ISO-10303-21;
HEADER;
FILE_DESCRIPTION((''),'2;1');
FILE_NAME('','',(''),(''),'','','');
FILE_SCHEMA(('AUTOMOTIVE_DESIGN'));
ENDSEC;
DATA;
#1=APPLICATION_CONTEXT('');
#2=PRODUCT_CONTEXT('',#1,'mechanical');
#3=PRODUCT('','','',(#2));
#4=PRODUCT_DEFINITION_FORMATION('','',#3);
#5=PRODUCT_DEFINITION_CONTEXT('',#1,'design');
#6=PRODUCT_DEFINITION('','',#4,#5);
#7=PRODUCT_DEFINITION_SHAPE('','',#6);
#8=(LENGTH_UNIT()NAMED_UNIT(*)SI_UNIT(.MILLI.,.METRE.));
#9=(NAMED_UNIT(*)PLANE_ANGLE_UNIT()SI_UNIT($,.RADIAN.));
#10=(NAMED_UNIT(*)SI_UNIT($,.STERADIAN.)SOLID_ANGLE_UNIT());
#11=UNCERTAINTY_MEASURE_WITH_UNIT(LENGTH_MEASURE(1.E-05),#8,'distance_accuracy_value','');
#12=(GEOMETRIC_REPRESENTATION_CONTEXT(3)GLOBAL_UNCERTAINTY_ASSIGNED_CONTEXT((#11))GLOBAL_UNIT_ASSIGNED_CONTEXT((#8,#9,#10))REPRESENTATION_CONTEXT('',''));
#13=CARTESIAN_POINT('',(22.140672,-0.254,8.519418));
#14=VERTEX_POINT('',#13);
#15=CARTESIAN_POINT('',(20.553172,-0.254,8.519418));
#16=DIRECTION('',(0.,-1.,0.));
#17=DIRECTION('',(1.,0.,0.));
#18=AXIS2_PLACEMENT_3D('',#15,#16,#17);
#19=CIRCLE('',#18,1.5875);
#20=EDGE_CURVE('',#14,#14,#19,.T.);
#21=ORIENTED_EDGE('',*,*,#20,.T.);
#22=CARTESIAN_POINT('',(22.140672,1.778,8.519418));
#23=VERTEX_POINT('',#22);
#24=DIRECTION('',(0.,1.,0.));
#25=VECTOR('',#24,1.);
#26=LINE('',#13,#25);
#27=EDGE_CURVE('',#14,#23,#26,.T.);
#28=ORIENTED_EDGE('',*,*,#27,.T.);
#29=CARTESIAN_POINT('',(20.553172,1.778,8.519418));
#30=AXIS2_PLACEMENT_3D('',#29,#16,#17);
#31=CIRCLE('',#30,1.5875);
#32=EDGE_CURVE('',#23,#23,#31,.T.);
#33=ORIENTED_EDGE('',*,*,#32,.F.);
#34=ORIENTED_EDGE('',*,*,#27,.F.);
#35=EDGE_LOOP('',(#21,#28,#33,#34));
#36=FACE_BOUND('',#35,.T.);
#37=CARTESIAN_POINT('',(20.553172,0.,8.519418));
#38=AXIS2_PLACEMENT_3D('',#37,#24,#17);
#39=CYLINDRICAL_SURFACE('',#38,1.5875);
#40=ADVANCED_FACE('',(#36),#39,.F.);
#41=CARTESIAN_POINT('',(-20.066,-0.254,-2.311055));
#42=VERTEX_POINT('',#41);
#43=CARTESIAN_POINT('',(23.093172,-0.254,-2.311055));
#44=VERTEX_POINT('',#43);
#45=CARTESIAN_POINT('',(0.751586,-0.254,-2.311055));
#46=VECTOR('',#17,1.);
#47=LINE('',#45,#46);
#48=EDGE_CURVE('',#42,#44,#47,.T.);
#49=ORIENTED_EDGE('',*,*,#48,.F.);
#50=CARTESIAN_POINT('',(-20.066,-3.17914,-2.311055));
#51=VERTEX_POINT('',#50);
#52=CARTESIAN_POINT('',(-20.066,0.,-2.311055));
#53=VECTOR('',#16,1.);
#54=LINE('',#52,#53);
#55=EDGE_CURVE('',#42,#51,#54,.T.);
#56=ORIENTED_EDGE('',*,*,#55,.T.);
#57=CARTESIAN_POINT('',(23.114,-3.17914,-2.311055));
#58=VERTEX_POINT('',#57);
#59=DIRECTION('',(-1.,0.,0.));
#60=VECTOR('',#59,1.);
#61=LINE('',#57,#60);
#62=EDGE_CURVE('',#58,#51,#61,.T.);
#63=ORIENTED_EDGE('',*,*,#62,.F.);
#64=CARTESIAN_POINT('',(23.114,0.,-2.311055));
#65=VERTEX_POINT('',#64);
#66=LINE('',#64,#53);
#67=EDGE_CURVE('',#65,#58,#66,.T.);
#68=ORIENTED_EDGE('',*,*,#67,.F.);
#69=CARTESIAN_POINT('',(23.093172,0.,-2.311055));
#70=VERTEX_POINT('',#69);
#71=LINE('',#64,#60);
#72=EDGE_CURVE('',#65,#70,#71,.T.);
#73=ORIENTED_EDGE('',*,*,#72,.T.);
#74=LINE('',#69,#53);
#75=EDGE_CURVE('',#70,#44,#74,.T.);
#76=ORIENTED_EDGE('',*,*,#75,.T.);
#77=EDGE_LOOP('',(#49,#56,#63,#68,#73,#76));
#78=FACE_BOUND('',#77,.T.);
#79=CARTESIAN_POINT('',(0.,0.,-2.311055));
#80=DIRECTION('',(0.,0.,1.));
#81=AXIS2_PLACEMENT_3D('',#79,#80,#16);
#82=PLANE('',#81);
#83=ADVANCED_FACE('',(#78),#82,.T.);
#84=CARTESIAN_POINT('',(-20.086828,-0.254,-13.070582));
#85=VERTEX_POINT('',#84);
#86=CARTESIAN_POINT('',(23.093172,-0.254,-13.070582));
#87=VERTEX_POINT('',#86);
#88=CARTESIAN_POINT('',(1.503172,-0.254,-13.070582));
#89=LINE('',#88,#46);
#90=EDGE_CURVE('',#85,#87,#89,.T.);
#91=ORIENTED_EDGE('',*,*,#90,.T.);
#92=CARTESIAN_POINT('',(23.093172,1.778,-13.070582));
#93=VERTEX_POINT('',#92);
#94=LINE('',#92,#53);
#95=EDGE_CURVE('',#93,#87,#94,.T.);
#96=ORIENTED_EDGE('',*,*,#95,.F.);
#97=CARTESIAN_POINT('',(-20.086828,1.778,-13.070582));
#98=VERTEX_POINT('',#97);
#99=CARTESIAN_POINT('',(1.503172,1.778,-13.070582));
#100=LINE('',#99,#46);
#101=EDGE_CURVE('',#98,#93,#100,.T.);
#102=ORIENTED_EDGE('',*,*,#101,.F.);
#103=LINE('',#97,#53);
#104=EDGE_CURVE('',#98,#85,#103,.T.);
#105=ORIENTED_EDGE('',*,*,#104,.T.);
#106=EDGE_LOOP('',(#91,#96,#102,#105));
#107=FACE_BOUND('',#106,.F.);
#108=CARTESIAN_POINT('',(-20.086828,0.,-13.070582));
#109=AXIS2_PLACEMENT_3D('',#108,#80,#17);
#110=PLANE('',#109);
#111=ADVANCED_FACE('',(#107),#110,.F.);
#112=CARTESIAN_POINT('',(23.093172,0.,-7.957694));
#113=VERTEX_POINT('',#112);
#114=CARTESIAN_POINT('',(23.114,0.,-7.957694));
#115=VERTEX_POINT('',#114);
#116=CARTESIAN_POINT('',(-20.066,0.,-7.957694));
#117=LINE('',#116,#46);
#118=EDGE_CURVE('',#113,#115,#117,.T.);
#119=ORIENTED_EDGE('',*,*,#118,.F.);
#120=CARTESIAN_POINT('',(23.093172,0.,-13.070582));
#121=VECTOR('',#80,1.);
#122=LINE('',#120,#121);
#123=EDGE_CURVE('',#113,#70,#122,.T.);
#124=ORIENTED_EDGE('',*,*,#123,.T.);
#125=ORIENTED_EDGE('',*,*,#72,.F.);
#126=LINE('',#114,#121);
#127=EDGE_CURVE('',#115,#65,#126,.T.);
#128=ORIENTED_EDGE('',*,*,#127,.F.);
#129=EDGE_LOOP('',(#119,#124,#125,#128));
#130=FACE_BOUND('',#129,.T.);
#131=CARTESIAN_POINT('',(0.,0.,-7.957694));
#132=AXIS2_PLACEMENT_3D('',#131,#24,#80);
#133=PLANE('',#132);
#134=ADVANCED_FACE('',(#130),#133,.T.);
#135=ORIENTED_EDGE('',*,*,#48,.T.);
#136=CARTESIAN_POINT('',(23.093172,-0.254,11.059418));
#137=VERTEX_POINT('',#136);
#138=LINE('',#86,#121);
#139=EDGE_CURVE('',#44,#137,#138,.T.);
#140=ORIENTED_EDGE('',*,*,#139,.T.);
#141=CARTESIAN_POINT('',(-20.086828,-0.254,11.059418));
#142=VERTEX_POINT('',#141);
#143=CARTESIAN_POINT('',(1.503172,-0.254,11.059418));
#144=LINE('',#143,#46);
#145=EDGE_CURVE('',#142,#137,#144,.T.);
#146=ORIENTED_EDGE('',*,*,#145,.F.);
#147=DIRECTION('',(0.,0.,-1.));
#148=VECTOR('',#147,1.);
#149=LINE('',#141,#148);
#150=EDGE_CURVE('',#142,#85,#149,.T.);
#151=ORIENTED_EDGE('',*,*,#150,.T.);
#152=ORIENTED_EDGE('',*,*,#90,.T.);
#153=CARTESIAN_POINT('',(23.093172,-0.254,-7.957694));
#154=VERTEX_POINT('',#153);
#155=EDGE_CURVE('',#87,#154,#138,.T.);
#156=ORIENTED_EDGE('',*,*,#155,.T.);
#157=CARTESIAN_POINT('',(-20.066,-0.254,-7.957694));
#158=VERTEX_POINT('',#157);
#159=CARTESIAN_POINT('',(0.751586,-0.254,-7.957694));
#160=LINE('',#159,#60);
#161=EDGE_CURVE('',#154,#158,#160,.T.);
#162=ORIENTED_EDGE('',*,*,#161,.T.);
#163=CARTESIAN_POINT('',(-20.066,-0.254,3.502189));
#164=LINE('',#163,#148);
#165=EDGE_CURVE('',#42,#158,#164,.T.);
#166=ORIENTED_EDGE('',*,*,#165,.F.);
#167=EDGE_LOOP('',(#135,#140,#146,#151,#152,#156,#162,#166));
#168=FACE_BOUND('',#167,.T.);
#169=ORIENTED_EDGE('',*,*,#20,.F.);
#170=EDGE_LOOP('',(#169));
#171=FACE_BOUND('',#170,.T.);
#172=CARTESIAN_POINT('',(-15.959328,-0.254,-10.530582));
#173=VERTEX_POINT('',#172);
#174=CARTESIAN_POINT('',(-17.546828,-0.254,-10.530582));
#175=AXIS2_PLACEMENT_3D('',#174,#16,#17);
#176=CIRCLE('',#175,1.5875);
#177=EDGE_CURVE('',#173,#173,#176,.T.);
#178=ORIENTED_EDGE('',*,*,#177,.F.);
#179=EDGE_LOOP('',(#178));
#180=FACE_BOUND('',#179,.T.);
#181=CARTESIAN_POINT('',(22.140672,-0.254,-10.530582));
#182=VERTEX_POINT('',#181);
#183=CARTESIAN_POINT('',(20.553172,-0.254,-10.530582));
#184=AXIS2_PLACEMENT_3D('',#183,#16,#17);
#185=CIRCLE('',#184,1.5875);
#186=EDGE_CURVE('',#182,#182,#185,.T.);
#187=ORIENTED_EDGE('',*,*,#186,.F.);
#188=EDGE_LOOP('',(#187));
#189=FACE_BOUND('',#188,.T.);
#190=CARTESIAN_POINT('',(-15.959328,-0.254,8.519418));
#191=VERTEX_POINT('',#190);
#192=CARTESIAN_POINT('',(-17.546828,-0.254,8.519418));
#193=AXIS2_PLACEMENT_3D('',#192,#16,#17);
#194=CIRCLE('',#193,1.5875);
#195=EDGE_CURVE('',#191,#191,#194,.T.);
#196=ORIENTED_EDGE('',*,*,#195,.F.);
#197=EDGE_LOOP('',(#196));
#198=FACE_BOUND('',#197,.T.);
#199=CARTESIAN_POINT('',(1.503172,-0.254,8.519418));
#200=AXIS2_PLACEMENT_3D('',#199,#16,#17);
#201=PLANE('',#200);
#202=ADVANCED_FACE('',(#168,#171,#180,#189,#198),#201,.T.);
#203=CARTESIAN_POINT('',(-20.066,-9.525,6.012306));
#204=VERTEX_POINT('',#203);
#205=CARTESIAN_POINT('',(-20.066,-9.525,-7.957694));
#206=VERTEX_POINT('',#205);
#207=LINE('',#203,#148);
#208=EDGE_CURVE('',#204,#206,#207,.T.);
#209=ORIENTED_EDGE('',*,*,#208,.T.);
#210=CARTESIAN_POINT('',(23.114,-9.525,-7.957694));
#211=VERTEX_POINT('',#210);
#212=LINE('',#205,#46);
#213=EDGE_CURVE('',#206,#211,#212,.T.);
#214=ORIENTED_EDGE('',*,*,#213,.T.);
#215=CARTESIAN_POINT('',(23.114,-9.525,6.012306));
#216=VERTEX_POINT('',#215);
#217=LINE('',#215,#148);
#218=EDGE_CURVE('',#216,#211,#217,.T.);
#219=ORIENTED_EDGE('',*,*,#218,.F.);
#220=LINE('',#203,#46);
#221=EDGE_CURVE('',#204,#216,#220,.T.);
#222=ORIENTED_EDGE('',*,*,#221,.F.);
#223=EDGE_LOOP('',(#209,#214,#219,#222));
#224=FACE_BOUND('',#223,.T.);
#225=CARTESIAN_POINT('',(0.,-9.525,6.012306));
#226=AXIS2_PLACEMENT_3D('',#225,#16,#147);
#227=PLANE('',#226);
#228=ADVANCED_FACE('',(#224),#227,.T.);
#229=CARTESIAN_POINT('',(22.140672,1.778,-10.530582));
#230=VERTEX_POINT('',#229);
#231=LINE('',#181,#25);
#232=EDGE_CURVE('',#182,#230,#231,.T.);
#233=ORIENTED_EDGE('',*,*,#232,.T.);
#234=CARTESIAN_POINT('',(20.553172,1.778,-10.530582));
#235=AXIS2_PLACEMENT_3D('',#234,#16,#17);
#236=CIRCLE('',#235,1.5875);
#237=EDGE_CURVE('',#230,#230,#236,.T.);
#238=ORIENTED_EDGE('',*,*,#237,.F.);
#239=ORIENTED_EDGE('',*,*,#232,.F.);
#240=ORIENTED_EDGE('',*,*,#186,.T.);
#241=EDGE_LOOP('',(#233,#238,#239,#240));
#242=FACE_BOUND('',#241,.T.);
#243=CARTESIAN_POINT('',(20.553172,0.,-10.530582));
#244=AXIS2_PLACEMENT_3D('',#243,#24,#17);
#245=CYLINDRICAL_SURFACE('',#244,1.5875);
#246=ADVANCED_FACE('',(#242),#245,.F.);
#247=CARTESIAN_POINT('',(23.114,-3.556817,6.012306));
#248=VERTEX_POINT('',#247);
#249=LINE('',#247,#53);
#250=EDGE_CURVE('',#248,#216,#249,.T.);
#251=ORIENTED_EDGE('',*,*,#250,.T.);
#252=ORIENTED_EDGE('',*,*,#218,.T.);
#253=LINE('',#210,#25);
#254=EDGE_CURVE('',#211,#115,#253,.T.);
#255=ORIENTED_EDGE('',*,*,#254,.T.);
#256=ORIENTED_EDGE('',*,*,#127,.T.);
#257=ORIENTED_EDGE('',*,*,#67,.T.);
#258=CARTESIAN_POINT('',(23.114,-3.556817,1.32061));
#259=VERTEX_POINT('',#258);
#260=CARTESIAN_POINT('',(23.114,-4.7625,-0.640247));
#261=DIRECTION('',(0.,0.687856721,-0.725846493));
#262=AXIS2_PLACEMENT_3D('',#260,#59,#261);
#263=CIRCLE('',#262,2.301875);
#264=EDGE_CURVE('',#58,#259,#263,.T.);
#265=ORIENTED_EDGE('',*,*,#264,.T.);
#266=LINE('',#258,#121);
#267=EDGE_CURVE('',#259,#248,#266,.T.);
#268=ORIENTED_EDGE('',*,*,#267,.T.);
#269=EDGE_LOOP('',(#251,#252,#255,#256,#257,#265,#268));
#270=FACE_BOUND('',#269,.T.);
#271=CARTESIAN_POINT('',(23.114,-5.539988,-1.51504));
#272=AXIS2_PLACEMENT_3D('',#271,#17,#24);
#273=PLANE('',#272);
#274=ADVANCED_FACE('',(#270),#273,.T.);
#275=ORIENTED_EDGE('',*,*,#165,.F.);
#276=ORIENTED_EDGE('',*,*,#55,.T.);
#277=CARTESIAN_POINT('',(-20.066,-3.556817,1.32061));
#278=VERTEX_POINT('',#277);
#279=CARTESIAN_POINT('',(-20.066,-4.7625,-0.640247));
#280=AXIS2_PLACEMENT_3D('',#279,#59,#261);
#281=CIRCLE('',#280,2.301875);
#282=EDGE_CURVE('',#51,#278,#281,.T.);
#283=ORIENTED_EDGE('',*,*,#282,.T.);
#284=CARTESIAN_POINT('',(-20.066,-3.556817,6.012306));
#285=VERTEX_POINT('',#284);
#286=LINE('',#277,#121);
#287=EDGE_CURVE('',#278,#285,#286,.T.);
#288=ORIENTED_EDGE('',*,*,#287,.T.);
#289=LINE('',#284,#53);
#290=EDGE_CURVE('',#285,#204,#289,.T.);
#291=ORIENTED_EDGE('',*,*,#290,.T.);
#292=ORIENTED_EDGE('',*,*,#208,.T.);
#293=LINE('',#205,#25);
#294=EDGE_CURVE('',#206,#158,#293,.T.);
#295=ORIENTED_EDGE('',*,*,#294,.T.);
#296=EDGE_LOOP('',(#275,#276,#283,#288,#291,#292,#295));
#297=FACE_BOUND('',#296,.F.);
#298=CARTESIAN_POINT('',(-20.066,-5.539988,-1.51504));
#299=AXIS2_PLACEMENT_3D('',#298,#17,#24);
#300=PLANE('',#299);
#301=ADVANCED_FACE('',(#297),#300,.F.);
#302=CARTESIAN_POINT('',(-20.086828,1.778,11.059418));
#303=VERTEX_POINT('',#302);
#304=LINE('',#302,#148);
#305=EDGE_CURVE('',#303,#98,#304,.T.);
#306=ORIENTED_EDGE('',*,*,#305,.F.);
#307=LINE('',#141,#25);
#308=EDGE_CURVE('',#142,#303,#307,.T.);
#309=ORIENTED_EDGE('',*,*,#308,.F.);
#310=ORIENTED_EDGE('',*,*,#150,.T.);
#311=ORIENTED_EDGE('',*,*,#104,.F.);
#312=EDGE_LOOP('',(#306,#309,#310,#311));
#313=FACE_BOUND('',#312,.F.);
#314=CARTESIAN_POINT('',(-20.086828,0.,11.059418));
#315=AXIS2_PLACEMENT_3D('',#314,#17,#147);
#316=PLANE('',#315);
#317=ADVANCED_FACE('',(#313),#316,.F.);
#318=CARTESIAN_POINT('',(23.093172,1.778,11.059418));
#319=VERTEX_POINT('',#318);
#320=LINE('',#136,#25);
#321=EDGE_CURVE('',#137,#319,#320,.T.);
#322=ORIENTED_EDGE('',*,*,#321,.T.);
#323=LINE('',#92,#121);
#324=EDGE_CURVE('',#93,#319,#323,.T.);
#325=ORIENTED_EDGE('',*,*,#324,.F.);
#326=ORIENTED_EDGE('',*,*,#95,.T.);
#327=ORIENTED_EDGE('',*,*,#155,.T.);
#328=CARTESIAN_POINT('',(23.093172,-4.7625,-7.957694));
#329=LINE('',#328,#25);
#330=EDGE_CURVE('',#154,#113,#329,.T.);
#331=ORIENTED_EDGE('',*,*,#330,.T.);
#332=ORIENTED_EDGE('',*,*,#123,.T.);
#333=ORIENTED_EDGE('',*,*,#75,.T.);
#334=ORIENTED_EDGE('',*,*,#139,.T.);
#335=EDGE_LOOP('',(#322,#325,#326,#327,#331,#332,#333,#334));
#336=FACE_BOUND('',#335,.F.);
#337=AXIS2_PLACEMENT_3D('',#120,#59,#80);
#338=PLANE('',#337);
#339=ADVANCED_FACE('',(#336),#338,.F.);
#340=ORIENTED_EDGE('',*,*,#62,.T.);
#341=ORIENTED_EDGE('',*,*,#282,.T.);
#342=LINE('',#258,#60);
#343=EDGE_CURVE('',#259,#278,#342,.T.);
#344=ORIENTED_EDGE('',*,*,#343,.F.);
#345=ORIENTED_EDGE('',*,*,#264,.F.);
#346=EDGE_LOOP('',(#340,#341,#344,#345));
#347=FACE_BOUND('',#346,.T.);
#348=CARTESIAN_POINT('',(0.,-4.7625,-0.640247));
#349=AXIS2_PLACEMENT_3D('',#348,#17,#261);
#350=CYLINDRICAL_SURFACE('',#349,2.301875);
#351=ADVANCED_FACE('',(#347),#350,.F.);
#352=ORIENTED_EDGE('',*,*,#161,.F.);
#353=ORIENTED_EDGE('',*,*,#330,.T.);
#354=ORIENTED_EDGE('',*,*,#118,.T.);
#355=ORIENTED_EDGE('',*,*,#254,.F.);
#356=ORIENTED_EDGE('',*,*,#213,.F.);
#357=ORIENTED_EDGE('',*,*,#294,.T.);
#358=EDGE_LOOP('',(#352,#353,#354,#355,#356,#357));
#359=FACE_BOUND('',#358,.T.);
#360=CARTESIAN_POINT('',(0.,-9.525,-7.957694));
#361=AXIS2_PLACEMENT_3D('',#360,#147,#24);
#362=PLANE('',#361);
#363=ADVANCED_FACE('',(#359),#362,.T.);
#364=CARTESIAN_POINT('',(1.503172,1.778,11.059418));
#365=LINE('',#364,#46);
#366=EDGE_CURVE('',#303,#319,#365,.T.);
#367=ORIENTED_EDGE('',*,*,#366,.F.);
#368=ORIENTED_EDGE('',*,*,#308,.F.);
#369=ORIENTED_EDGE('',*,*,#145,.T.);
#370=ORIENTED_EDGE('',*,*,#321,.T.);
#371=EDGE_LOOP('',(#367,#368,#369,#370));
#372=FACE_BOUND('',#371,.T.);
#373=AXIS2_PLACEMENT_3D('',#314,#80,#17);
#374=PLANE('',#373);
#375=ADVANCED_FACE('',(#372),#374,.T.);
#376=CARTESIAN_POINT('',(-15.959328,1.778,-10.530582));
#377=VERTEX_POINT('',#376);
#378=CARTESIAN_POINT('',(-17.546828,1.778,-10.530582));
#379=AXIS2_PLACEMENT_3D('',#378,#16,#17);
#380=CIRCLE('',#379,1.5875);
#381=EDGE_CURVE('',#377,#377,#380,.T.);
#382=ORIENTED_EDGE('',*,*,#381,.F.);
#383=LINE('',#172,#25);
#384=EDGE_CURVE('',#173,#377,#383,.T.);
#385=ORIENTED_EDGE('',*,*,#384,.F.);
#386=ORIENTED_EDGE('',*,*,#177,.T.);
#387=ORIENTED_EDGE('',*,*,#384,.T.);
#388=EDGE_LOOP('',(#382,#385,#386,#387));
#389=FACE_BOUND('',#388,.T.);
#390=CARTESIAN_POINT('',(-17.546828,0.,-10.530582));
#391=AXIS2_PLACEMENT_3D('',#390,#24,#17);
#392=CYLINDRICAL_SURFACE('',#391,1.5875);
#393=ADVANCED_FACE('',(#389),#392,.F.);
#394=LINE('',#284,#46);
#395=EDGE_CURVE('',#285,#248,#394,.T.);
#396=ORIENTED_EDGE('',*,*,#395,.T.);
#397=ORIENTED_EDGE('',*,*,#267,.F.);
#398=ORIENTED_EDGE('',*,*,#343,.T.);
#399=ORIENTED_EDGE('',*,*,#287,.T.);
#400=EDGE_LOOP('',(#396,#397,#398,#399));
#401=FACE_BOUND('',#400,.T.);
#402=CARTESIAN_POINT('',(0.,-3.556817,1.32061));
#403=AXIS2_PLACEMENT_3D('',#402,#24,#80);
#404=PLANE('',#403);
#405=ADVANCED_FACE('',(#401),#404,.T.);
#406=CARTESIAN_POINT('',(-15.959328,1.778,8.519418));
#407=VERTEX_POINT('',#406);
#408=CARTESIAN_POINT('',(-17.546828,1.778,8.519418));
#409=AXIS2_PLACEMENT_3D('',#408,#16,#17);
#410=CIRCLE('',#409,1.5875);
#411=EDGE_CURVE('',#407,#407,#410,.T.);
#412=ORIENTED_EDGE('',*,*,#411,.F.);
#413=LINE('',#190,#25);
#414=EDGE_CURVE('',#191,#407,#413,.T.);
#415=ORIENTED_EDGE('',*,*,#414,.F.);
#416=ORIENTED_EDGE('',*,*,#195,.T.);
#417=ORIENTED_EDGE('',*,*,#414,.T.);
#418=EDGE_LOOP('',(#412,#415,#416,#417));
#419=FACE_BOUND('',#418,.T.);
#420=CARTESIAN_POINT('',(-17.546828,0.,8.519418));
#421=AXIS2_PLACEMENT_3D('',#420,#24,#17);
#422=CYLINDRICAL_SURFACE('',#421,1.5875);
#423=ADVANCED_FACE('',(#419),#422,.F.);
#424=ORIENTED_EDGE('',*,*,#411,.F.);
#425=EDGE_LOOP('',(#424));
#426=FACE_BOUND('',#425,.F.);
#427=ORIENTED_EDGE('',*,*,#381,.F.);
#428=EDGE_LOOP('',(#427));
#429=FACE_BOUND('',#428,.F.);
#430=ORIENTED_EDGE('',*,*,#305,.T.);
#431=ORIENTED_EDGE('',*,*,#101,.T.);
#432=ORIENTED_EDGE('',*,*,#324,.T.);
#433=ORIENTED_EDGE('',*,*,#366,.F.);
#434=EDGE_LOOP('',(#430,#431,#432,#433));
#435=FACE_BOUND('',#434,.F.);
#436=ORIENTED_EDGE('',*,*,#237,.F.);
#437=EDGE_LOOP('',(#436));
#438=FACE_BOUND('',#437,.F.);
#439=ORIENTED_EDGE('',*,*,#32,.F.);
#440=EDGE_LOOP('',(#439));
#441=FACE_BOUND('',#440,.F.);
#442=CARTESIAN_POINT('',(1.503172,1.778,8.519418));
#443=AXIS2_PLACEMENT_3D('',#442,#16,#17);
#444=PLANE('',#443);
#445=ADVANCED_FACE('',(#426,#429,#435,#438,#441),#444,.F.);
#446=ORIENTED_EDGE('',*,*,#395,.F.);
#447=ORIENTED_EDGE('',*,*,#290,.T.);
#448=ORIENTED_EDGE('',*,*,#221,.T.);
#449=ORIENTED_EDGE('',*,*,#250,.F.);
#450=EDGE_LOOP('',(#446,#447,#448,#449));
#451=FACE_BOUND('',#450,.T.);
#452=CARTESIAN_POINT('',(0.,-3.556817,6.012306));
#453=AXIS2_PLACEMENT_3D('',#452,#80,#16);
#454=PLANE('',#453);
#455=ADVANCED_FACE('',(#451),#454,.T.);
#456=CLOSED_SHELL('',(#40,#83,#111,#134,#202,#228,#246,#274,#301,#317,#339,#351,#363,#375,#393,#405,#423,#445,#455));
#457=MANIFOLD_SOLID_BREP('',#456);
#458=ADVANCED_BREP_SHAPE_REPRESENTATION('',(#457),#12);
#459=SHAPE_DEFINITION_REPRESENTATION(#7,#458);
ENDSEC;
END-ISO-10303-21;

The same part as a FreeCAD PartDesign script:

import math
import FreeCAD as App
import Part
import Sketcher
Q = App.Units.Quantity


def add_polygon(sketch, points):
    """Adds a closed chain of lines whose ends are joined by coincident constraints."""
    first, n = sketch.GeometryCount, len(points)
    for a, b in zip(points, points[1:] + points[:1]):
        sketch.addGeometry(Part.LineSegment(App.Vector(*a, 0), App.Vector(*b, 0)), False)
    for i in range(n):
        sketch.addConstraint(Sketcher.Constraint("Coincident", first + i, 2, first + (i + 1) % n, 1))

doc = App.newDocument("Part")
body = doc.addObject("PartDesign::Body", "Body")

# Sketch on YZ plane
sketch1 = body.newObject("Sketcher::SketchObject", "Sketch")
sketch1.AttachmentSupport = (doc.getObject("YZ_Plane"), [""])
sketch1.MapMode = "FlatFace"
sketch1.addGeometry([
    Part.LineSegment(App.Vector(-3.6, 1.3, 0), App.Vector(-3.6, 6, 0)),  # 0
    Part.LineSegment(App.Vector(-3.6, 6, 0), App.Vector(-9.5, 6, 0)),  # 1
    Part.LineSegment(App.Vector(-9.5, 6, 0), App.Vector(-9.5, -8, 0)),  # 2
    Part.LineSegment(App.Vector(-9.5, -8, 0), App.Vector(0, -8, 0)),  # 3
    Part.LineSegment(App.Vector(0, -8, 0), App.Vector(0, -2.3, 0)),  # 4
    Part.LineSegment(App.Vector(0, -2.3, 0), App.Vector(-3.2, -2.3, 0)),  # 5
    Part.ArcOfCircle(Part.Circle(App.Vector(-4.8, -0.6, 0), App.Vector(0, 0, 1), 2.3), math.radians(58), math.radians(313)),  # 6
], False)
sketch1.addConstraint([
    Sketcher.Constraint("Coincident", 0, 2, 1, 1),
    Sketcher.Constraint("Coincident", 1, 2, 2, 1),
    Sketcher.Constraint("Coincident", 2, 2, 3, 1),
    Sketcher.Constraint("Coincident", 3, 2, 4, 1),
    Sketcher.Constraint("Coincident", 4, 2, 5, 1),
    Sketcher.Constraint("Coincident", 5, 2, 6, 2),
    Sketcher.Constraint("Coincident", 6, 1, 0, 1),
    Sketcher.Constraint("Vertical", 0),
    Sketcher.Constraint("Horizontal", 1),
    Sketcher.Constraint("Vertical", 2),
    Sketcher.Constraint("Horizontal", 3),
    Sketcher.Constraint("Vertical", 4),
    Sketcher.Constraint("Horizontal", 5),
    Sketcher.Constraint("PointOnObject", 3, 2, -2),
    Sketcher.Constraint("DistanceY", 2, 2, 2, 1, Q("0.55 in")),
    Sketcher.Constraint("DistanceX", 3, 1, 3, 2, Q("0.375 in")),
    Sketcher.Constraint("DistanceX", 6, 3, -1, 1, Q("0.1875 in")),
    Sketcher.Constraint("Radius", 6, Q("2.301875 mm")),
    Sketcher.Constraint("DistanceX", 5, 2, 5, 1, Q("3.17914 mm")),
    Sketcher.Constraint("DistanceY", 4, 1, 4, 2, Q("5.646639 mm")),
    Sketcher.Constraint("DistanceX", 1, 2, 1, 1, Q("5.968183 mm")),
    Sketcher.Constraint("DistanceY", -1, 1, 6, 1, Q("1.32061 mm")),
])
pad1 = body.newObject("PartDesign::Pad", "Pad")
pad1.Profile = sketch1
pad1.Type = "TwoLengths"
pad1.Length = Q("0.91 in")
pad1.Length2 = Q("0.79 in")

# Sketch on XZ plane
sketch2 = body.newObject("Sketcher::SketchObject", "Sketch001")
sketch2.AttachmentSupport = (doc.getObject("XZ_Plane"), [""])
sketch2.MapMode = "FlatFace"
add_polygon(sketch2, [(-20.1, 11.1), (-20.1, -13.1), (23.1, -13.1), (23.1, 11.1)])  # lines 0-3
sketch2.addGeometry(Part.Circle(App.Vector(-17.5, -10.5, 0), App.Vector(0, 0, 1), 1.6), False)  # 4
sketch2.addGeometry(Part.Circle(App.Vector(20.6, -10.5, 0), App.Vector(0, 0, 1), 1.6), False)  # 5
sketch2.addGeometry(Part.Circle(App.Vector(-17.5, 8.5, 0), App.Vector(0, 0, 1), 1.6), False)  # 6
sketch2.addGeometry(Part.Circle(App.Vector(20.6, 8.5, 0), App.Vector(0, 0, 1), 1.6), False)  # 7
sketch2.addConstraint([
    Sketcher.Constraint("Vertical", 0),
    Sketcher.Constraint("Horizontal", 1),
    Sketcher.Constraint("Vertical", 2),
    Sketcher.Constraint("Horizontal", 3),
    Sketcher.Constraint("Equal", 4, 5),
    Sketcher.Constraint("Equal", 5, 6),
    Sketcher.Constraint("Equal", 6, 7),
    Sketcher.Constraint("Horizontal", 4, 3, 5, 3),
    Sketcher.Constraint("Horizontal", 6, 3, 7, 3),
    Sketcher.Constraint("Vertical", 4, 3, 6, 3),
    Sketcher.Constraint("Vertical", 5, 3, 7, 3),
    Sketcher.Constraint("Diameter", 4, Q("0.125 in")),
    Sketcher.Constraint("DistanceX", 1, 1, 1, 2, Q("1.7 in")),
    Sketcher.Constraint("DistanceY", 0, 2, 0, 1, Q("0.95 in")),
    Sketcher.Constraint("DistanceX", 4, 3, 5, 3, Q("1.5 in")),
    Sketcher.Constraint("DistanceX", 0, 2, 4, 3, Q("0.1 in")),
    Sketcher.Constraint("DistanceY", 0, 2, 4, 3, Q("0.1 in")),
    Sketcher.Constraint("DistanceY", 7, 3, 2, 2, Q("0.1 in")),
    Sketcher.Constraint("DistanceX", 4, 3, -1, 1, Q("17.546828 mm")),
    Sketcher.Constraint("DistanceY", 4, 3, -1, 1, Q("10.530582 mm")),
])
pad2 = body.newObject("PartDesign::Pad", "Pad001")
pad2.Profile = sketch2
pad2.Type = "TwoLengths"
pad2.Length = Q("0.07 in")
pad2.Length2 = Q("0.01 in")
pad2.Reversed = True

doc.recompute()
